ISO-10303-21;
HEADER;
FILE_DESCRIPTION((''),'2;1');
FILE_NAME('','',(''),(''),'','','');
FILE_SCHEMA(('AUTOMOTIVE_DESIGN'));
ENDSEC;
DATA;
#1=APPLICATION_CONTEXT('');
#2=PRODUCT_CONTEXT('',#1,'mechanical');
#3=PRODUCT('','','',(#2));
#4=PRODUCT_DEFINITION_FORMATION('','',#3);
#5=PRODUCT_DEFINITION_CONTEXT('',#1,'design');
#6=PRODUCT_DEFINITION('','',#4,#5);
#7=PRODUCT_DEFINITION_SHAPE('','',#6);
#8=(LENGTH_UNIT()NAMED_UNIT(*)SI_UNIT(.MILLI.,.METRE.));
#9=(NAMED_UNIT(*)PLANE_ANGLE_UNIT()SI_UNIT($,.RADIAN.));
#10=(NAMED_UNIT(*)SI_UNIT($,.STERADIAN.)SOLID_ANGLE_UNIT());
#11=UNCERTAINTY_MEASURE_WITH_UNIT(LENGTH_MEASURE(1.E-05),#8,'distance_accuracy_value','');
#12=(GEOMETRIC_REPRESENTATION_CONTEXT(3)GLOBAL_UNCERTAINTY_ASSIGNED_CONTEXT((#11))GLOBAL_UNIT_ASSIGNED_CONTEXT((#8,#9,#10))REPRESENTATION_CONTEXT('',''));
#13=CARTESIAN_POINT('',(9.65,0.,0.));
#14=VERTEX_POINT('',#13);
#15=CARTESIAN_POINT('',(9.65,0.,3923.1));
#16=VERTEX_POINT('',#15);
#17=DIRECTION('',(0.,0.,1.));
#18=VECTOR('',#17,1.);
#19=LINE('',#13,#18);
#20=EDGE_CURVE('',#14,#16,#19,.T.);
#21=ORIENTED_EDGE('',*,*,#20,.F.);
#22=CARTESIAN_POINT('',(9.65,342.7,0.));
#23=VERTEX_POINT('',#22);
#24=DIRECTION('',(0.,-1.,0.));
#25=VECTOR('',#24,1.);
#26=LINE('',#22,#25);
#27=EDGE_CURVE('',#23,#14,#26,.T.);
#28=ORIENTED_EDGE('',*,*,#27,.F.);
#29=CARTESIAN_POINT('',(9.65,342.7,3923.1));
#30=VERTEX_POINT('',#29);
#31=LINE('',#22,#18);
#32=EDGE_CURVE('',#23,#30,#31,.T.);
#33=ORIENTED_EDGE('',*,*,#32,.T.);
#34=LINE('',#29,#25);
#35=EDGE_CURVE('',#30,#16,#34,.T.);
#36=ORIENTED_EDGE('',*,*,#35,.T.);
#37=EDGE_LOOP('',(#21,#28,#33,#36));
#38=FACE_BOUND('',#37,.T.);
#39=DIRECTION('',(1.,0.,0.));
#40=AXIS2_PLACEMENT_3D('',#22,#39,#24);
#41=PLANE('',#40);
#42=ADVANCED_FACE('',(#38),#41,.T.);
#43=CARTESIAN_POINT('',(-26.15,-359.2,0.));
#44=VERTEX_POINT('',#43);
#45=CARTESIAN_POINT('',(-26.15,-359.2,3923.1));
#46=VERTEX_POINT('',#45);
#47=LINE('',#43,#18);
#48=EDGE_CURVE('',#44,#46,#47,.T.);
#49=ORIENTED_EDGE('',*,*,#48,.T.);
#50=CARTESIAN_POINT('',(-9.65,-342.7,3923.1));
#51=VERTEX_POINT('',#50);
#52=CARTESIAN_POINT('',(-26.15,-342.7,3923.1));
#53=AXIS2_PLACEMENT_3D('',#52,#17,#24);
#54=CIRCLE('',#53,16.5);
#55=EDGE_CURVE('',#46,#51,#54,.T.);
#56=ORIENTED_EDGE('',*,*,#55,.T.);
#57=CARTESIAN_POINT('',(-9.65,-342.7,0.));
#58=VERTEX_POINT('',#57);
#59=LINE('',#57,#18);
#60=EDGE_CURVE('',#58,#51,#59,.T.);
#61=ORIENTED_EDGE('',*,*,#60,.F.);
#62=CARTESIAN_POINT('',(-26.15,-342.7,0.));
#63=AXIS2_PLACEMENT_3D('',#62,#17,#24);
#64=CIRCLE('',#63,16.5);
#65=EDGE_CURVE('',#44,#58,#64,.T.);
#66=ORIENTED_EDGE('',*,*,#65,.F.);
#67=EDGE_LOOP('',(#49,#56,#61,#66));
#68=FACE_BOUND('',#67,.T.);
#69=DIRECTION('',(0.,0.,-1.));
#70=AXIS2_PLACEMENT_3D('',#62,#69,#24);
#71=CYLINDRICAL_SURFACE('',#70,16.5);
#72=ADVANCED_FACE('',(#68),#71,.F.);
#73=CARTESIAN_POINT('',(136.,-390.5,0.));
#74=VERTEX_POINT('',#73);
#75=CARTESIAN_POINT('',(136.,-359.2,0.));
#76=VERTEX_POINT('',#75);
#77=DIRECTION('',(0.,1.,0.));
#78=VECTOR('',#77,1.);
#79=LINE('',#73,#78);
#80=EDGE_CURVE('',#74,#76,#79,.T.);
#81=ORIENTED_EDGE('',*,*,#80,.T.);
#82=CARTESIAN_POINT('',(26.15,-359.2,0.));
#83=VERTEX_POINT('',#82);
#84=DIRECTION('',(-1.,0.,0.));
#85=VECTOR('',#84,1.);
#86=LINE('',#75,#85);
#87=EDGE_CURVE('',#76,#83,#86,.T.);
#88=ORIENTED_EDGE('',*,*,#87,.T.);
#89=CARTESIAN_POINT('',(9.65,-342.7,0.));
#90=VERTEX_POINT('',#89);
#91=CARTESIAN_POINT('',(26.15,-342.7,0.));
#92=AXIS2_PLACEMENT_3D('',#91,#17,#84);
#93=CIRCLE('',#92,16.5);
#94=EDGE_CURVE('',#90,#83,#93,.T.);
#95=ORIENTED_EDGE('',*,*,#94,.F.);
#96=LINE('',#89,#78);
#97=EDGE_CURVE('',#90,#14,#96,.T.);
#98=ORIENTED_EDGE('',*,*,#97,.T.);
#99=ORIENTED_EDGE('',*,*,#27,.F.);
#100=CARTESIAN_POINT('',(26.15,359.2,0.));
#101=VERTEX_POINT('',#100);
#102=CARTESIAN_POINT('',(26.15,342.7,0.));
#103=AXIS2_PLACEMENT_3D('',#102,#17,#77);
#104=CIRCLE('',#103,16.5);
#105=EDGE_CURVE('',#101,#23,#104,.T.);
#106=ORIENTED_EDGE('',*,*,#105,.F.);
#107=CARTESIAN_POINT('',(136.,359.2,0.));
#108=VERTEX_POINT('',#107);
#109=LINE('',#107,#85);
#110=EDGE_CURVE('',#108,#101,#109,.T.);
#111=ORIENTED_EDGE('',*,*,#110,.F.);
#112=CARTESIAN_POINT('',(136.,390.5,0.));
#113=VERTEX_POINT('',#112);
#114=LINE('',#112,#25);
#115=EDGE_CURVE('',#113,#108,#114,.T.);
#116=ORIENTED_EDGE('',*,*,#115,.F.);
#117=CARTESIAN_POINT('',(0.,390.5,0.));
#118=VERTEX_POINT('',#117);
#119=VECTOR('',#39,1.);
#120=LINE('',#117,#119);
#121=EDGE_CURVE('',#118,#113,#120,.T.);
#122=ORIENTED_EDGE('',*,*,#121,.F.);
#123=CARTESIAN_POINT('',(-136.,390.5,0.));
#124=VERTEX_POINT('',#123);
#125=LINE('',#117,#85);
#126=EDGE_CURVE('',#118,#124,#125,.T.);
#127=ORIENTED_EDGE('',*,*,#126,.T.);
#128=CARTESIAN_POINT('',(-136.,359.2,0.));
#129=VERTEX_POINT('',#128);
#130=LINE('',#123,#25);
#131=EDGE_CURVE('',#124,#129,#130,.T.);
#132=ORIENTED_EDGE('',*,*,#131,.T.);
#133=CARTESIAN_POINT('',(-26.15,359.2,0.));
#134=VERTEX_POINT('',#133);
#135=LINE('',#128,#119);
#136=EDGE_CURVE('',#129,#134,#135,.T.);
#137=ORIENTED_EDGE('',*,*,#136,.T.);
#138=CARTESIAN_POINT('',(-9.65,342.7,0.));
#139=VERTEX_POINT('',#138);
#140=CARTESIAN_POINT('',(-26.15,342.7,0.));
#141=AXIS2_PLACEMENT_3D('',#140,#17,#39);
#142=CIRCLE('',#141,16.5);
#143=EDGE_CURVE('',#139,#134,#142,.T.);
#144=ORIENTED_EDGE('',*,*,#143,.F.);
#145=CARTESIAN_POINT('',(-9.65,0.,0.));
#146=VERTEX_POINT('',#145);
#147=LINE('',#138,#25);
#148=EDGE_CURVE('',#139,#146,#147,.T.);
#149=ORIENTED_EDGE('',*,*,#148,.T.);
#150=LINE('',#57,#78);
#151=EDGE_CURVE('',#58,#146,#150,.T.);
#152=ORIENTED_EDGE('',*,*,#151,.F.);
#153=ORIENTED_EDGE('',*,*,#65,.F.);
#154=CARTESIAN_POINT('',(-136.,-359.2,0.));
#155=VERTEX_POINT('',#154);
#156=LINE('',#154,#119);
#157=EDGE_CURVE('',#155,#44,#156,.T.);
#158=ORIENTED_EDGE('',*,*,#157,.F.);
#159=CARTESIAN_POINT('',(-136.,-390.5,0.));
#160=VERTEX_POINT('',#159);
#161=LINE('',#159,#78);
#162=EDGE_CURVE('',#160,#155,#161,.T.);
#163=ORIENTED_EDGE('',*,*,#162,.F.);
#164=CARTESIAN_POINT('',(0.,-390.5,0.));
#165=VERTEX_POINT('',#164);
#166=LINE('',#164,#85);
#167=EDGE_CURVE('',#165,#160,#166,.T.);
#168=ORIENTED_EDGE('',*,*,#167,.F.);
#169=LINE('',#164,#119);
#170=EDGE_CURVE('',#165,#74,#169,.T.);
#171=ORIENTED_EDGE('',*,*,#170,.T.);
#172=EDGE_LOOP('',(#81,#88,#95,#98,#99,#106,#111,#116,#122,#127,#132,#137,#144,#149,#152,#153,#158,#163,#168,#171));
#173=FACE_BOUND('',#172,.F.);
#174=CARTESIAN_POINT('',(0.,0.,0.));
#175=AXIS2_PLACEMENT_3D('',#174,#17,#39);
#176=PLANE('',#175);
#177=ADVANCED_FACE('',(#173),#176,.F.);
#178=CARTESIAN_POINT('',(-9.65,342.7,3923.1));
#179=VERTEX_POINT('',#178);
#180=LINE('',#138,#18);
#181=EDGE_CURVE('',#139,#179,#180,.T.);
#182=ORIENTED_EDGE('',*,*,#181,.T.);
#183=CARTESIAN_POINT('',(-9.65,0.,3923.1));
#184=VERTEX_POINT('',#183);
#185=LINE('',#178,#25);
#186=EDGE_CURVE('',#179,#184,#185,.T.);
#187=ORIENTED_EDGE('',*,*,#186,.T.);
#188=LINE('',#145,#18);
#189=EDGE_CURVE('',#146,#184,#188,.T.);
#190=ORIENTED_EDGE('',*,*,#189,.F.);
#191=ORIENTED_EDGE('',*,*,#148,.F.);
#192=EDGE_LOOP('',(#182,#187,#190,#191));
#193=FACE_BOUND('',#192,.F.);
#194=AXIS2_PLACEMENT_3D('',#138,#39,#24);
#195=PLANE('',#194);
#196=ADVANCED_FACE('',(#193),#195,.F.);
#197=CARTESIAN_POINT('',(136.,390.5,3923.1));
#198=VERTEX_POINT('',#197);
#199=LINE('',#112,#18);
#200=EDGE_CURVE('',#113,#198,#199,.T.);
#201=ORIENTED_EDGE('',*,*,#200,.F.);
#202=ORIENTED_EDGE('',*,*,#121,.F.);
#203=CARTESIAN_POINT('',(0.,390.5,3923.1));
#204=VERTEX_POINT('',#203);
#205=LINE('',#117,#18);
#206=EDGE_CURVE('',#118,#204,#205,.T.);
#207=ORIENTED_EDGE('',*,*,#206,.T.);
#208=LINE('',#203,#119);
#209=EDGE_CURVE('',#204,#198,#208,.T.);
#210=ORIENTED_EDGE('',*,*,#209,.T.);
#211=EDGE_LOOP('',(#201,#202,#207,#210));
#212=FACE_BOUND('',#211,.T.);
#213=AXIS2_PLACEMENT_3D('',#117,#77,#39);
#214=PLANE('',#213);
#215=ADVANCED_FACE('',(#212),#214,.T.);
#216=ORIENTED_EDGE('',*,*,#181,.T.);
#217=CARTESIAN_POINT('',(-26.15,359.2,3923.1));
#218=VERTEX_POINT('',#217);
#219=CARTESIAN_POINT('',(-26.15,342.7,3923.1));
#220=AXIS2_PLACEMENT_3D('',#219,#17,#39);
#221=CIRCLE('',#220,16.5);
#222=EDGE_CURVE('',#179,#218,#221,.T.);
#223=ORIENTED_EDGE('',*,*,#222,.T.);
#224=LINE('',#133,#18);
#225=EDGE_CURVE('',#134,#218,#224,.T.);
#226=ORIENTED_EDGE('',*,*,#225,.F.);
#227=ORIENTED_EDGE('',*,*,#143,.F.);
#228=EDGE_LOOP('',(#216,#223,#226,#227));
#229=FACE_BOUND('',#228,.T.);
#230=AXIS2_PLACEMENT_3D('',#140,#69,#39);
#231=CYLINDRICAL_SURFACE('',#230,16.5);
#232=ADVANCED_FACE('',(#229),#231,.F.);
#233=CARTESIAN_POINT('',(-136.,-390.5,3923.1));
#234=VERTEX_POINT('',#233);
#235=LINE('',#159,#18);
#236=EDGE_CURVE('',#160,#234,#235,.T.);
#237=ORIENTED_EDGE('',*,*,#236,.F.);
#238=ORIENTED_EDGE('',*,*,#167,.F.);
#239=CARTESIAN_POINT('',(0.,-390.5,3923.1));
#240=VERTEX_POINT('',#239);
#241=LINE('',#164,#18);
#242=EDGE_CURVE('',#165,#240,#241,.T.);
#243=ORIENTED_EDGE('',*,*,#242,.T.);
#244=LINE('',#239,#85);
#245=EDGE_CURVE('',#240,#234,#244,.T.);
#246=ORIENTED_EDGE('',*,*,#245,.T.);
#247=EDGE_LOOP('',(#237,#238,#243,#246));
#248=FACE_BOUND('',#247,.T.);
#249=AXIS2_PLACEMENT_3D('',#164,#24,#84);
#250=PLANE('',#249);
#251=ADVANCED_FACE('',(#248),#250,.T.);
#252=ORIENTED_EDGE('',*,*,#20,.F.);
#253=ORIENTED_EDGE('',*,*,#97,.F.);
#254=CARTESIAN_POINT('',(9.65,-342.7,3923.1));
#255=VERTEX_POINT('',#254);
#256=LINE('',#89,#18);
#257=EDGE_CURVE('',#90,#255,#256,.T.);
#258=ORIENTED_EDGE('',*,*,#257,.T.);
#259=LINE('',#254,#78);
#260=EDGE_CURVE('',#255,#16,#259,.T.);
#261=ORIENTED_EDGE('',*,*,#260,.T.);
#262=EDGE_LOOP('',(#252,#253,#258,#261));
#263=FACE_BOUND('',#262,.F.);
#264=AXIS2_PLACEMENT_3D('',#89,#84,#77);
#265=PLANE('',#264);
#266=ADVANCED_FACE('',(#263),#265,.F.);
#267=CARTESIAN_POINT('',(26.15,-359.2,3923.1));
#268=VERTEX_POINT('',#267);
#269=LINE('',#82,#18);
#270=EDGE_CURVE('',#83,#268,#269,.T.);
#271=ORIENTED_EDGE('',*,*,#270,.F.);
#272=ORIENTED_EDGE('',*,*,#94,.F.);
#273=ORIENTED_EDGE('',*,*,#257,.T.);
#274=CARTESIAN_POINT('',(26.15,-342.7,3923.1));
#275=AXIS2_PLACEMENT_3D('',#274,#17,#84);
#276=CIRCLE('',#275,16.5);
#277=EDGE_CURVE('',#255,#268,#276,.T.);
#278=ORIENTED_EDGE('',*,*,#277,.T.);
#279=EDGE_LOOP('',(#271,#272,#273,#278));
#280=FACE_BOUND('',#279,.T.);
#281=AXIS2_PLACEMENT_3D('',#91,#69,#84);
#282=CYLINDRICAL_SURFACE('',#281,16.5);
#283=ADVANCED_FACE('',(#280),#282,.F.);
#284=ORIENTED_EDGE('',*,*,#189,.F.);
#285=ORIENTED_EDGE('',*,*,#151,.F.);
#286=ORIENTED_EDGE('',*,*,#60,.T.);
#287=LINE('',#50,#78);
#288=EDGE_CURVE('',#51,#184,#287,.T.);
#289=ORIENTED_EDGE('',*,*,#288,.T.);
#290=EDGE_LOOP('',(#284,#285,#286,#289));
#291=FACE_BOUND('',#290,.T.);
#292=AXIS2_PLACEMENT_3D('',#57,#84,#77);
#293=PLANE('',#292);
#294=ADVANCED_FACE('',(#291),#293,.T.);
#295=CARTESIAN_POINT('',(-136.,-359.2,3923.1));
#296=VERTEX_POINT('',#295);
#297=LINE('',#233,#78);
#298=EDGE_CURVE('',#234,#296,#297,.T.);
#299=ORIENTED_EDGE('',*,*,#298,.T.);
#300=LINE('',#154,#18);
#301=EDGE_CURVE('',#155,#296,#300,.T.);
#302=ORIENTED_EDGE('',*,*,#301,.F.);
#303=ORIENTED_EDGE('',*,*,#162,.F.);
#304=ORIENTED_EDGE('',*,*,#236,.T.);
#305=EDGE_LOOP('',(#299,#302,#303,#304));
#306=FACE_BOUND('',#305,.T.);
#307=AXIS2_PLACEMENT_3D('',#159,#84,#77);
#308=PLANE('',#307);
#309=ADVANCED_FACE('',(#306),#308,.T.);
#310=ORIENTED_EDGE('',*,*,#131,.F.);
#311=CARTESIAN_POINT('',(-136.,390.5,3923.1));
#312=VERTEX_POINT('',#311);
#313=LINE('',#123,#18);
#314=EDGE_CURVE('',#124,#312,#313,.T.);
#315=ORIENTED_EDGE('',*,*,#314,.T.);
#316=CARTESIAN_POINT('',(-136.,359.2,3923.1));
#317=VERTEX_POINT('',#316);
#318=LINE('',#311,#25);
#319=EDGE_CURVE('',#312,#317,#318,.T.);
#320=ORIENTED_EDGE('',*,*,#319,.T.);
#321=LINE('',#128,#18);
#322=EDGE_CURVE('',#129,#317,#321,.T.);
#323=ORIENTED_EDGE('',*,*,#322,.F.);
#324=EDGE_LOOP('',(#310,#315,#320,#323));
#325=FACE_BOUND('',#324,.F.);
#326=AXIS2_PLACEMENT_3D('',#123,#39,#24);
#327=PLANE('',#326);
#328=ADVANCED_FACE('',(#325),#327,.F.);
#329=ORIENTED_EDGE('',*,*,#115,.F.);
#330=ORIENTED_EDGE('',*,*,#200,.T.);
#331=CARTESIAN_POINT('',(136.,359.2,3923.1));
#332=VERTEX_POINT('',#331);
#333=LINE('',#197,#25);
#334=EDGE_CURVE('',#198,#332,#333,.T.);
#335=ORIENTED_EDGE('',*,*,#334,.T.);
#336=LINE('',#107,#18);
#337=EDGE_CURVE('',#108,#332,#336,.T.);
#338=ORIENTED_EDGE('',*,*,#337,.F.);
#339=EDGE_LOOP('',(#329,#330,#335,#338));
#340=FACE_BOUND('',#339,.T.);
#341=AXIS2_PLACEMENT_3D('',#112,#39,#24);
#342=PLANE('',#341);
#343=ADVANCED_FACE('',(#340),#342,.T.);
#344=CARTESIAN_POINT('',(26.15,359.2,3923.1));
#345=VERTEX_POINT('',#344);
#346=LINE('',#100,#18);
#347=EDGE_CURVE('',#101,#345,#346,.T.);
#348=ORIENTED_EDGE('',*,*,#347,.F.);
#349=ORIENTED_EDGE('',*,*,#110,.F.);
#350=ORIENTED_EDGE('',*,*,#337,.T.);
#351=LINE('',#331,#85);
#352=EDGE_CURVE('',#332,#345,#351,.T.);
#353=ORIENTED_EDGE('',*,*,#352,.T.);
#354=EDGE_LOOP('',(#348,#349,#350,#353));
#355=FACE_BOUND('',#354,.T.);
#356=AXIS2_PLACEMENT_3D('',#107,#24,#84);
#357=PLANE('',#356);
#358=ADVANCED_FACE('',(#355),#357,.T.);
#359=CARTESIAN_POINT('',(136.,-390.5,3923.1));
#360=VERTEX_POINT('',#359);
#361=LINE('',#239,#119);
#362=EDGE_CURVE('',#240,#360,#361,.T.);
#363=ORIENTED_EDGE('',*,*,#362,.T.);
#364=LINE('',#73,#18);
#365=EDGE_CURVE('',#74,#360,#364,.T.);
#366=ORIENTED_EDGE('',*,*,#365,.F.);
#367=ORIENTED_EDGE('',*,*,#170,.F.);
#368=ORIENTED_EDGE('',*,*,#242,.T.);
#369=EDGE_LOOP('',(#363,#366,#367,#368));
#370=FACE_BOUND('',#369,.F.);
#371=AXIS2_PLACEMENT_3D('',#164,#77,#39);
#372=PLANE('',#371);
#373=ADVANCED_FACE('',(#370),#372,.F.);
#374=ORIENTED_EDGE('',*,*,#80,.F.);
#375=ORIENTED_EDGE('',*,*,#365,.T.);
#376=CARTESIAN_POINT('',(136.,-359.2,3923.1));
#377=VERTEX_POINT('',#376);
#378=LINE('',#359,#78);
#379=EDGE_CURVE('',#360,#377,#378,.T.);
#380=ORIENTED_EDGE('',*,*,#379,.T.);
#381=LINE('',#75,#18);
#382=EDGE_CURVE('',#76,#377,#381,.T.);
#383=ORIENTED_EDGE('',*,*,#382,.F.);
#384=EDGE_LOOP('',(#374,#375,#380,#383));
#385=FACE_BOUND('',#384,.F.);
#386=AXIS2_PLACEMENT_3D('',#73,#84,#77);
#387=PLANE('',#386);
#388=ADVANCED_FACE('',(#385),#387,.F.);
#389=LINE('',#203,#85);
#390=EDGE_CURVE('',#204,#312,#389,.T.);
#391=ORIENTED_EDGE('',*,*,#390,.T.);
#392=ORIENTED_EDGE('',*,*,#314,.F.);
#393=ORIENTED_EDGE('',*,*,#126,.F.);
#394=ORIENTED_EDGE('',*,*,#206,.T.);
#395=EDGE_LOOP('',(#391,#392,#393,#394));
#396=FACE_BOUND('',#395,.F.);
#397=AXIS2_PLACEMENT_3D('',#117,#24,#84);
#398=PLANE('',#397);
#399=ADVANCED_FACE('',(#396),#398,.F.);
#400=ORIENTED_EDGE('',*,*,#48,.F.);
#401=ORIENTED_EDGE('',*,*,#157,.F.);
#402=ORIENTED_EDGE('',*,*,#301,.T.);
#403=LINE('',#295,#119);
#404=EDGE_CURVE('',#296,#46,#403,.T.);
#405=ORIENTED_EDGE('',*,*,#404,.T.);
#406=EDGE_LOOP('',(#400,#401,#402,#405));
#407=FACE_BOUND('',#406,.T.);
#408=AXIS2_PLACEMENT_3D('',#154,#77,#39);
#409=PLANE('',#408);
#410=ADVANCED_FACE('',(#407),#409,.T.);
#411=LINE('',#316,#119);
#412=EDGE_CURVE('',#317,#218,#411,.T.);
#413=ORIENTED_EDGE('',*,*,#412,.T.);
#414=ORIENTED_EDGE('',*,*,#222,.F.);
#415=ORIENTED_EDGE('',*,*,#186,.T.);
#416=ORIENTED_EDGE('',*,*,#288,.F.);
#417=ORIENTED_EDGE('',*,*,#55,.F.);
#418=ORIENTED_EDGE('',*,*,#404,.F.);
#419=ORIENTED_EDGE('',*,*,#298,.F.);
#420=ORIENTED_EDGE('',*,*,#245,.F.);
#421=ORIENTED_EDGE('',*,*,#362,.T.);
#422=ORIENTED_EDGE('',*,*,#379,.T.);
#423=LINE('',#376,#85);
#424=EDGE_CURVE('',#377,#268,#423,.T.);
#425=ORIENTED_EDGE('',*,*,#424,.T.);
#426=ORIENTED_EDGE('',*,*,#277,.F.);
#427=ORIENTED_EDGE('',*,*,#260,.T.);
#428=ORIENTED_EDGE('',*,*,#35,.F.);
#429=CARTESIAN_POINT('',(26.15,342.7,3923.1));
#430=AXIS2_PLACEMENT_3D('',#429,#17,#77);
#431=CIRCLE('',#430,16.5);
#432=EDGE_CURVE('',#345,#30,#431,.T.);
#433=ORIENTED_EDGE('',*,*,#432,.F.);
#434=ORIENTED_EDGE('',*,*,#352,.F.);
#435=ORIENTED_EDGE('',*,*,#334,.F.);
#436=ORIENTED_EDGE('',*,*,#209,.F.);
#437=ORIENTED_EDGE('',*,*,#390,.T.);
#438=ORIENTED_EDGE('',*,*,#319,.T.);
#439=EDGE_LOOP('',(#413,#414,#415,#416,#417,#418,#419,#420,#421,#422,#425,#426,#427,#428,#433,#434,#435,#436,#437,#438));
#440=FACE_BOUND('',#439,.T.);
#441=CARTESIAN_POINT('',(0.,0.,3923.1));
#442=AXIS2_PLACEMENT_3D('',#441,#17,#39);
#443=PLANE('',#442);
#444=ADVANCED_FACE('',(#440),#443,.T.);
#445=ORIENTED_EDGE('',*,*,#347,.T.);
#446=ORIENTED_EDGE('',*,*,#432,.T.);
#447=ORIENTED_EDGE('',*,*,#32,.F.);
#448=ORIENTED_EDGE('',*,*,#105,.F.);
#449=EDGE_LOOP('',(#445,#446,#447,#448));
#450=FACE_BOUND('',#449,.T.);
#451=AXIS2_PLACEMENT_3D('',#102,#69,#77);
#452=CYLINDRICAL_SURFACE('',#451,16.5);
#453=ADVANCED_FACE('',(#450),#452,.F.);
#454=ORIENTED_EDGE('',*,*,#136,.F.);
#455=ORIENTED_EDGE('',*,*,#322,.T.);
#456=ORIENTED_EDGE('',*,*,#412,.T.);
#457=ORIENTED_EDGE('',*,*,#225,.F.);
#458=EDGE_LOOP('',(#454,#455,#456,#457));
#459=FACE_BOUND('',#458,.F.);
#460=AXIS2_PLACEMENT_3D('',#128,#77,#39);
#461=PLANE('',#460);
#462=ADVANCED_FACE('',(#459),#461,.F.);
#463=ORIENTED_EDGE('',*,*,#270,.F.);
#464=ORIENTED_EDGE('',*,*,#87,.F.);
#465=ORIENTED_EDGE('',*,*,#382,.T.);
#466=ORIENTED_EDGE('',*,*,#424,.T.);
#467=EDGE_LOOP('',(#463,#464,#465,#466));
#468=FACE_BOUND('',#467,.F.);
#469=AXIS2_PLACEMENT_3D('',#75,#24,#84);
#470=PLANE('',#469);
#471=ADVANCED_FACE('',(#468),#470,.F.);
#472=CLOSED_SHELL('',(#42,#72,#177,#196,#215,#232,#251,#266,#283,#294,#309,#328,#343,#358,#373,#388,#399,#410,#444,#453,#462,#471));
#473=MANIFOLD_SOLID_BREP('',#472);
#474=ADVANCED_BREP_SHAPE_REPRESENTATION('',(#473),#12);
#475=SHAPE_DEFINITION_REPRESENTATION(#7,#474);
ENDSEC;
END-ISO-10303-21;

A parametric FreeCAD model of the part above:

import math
import FreeCAD as App
import Part
import Sketcher

V = App.Vector

doc = App.newDocument("Part")
body = doc.addObject("PartDesign::Body", "Body")

# Sketch on XY plane
sketch1 = body.newObject("Sketcher::SketchObject", "Sketch")
sketch1.AttachmentSupport = (doc.getObject("XY_Plane"), [""])
sketch1.MapMode = "FlatFace"
sketch1.addGeometry([
    Part.LineSegment(V(-136, -359.2, 0), V(-136, -390.5, 0)),  # 0
    Part.LineSegment(V(-136, -390.5, 0), V(136, -390.5, 0)),  # 1
    Part.LineSegment(V(136, -390.5, 0), V(136, -359.2, 0)),  # 2
    Part.LineSegment(V(136, -359.2, 0), V(26.15, -359.2, 0)),  # 3
    Part.ArcOfCircle(Part.Circle(V(26.15, -342.7, 0), V(0, 0, 1), 16.5), math.radians(180), math.radians(270)),  # 4
    Part.LineSegment(V(9.65, -342.7, 0), V(9.65, 342.7, 0)),  # 5
    Part.ArcOfCircle(Part.Circle(V(26.15, 342.7, 0), V(0, 0, 1), 16.5), math.radians(90), math.radians(180)),  # 6
    Part.LineSegment(V(26.15, 359.2, 0), V(136, 359.2, 0)),  # 7
    Part.LineSegment(V(136, 359.2, 0), V(136, 390.5, 0)),  # 8
    Part.LineSegment(V(136, 390.5, 0), V(-136, 390.5, 0)),  # 9
    Part.LineSegment(V(-136, 390.5, 0), V(-136, 359.2, 0)),  # 10
    Part.LineSegment(V(-136, 359.2, 0), V(-26.15, 359.2, 0)),  # 11
    Part.ArcOfCircle(Part.Circle(V(-26.15, 342.7, 0), V(0, 0, 1), 16.5), math.radians(0), math.radians(90)),  # 12
    Part.LineSegment(V(-9.65, 342.7, 0), V(-9.65, -342.7, 0)),  # 13
    Part.ArcOfCircle(Part.Circle(V(-26.15, -342.7, 0), V(0, 0, 1), 16.5), math.radians(-90), math.radians(0)),  # 14
    Part.LineSegment(V(-26.15, -359.2, 0), V(-136, -359.2, 0)),  # 15
], False)
sketch1.addConstraint([
    Sketcher.Constraint("Coincident", 0, 2, 1, 1),
    Sketcher.Constraint("Coincident", 1, 2, 2, 1),
    Sketcher.Constraint("Coincident", 2, 2, 3, 1),
    Sketcher.Constraint("Tangent", 3, 2, 4, 2),
    Sketcher.Constraint("Tangent", 4, 1, 5, 1),
    Sketcher.Constraint("Tangent", 5, 2, 6, 2),
    Sketcher.Constraint("Tangent", 6, 1, 7, 1),
    Sketcher.Constraint("Coincident", 7, 2, 8, 1),
    Sketcher.Constraint("Coincident", 8, 2, 9, 1),
    Sketcher.Constraint("Coincident", 9, 2, 10, 1),
    Sketcher.Constraint("Coincident", 10, 2, 11, 1),
    Sketcher.Constraint("Tangent", 11, 2, 12, 2),
    Sketcher.Constraint("Tangent", 12, 1, 13, 1),
    Sketcher.Constraint("Tangent", 13, 2, 14, 2),
    Sketcher.Constraint("Tangent", 14, 1, 15, 1),
    Sketcher.Constraint("Coincident", 15, 2, 0, 1),
    Sketcher.Constraint("Vertical", 0),
    Sketcher.Constraint("Horizontal", 1),
    Sketcher.Constraint("Vertical", 2),
    Sketcher.Constraint("Horizontal", 3),
    Sketcher.Constraint("Vertical", 5),
    Sketcher.Constraint("Horizontal", 7),
    Sketcher.Constraint("Vertical", 8),
    Sketcher.Constraint("Horizontal", 9),
    Sketcher.Constraint("Vertical", 10),
    Sketcher.Constraint("Horizontal", 11),
    Sketcher.Constraint("Vertical", 13),
    Sketcher.Constraint("Horizontal", 15),
    Sketcher.Constraint("Equal", 4, 6),
    Sketcher.Constraint("Equal", 6, 12),
    Sketcher.Constraint("Equal", 12, 14),
    Sketcher.Constraint("Symmetric", 4, 3, 12, 3, -1, 1),
    Sketcher.Constraint("Symmetric", 0, 2, 8, 2, -1, 1),
    Sketcher.Constraint("Symmetric", 7, 2, 10, 2, -2),
    Sketcher.Constraint("Symmetric", 2, 2, 15, 2, -2),
    Sketcher.Constraint("Radius", 4, 16.5),
    Sketcher.Constraint("DistanceY", 0, 2, 0, 1, 31.3),
    Sketcher.Constraint("DistanceX", 0, 2, -1, 1, 136.0),
    Sketcher.Constraint("DistanceY", 0, 2, -1, 1, 390.5),
    Sketcher.Constraint("DistanceX", -1, 1, 4, 1, 9.65),
])
pad1 = body.newObject("PartDesign::Pad", "Pad")
pad1.Profile = sketch1
pad1.Length = 3923.1

doc.recompute()
